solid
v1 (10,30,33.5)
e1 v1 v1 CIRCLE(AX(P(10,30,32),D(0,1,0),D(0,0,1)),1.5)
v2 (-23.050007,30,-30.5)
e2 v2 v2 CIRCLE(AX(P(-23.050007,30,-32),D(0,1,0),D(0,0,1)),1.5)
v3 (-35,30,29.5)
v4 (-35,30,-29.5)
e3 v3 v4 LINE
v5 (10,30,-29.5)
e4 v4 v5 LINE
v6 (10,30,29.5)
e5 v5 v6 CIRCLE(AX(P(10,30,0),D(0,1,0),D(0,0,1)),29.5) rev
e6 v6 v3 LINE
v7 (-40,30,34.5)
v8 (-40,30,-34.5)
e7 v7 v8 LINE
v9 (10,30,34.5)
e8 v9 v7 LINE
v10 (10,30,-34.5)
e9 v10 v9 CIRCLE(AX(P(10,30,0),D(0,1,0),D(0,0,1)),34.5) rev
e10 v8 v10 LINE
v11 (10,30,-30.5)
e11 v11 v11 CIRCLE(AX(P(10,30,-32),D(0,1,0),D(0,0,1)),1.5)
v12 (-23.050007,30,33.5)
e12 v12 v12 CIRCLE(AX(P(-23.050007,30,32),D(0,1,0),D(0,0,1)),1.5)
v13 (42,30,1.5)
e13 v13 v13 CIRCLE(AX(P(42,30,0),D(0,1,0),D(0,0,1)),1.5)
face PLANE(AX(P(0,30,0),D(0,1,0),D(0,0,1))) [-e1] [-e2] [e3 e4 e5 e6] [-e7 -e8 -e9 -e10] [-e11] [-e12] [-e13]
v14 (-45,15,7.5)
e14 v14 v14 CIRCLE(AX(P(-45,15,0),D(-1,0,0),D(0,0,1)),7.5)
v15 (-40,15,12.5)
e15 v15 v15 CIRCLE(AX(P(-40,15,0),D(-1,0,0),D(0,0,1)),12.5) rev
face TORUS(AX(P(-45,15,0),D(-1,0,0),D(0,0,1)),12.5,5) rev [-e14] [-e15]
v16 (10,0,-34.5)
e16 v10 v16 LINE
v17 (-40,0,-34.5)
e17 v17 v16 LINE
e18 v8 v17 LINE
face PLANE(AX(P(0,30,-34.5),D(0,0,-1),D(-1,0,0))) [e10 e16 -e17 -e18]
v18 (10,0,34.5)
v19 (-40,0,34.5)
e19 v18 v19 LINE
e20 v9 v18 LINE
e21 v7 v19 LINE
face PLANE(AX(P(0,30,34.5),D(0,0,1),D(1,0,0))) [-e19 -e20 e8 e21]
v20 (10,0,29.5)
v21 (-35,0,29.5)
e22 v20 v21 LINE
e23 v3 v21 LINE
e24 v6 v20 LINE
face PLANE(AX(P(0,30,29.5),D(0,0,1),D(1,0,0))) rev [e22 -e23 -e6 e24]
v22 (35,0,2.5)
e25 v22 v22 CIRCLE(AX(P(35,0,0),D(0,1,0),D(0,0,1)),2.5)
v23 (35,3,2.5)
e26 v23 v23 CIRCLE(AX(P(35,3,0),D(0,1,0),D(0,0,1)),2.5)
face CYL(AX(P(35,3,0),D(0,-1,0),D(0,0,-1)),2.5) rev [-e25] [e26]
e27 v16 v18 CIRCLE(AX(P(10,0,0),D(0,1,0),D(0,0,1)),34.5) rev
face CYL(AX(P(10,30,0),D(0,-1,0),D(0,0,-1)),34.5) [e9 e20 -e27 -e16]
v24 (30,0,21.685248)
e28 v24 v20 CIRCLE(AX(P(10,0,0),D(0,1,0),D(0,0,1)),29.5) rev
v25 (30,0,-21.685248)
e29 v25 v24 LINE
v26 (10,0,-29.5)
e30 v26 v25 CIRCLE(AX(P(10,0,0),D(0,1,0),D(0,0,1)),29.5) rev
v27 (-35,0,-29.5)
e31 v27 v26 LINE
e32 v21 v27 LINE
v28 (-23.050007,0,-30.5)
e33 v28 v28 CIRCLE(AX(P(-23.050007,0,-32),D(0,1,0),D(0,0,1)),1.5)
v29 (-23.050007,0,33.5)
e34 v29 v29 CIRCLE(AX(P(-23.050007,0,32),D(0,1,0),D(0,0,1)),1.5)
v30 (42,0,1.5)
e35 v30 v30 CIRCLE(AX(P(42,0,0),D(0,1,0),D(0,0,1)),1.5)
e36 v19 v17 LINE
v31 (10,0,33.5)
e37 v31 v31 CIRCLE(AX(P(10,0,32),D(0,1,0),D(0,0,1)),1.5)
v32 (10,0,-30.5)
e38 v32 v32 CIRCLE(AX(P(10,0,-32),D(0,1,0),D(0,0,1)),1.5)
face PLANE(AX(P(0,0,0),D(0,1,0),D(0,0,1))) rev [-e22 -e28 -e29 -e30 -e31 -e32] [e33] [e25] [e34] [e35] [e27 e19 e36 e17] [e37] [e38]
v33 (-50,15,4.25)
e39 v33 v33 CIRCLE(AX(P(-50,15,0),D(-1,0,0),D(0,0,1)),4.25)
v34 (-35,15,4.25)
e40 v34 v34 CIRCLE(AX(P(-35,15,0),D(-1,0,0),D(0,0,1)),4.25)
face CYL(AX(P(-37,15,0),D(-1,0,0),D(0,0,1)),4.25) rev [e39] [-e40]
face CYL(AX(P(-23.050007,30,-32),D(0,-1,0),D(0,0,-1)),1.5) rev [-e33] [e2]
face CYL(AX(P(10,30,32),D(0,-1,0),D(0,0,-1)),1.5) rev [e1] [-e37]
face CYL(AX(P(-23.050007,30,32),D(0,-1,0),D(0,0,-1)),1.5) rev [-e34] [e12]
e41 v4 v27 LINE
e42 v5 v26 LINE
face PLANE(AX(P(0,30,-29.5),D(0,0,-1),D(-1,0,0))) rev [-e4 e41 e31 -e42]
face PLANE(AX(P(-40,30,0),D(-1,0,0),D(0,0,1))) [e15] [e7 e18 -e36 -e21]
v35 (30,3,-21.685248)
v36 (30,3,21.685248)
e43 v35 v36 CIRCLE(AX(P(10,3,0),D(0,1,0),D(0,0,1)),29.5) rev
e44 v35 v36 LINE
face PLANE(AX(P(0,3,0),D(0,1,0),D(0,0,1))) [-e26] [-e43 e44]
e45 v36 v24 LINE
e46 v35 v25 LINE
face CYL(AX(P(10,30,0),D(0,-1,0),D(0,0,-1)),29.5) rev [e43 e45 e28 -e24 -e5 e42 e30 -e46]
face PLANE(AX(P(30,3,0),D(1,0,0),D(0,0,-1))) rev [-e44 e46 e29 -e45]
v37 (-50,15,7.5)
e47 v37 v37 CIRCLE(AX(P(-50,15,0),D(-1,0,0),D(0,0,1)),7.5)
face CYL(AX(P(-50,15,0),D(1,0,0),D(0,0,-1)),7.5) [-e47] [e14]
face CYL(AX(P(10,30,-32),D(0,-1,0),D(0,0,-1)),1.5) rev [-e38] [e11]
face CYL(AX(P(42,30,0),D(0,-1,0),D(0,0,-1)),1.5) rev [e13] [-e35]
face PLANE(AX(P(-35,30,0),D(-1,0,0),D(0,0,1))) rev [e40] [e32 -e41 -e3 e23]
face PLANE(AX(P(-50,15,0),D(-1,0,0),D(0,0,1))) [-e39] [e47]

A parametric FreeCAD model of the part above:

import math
import FreeCAD as App
import Part
import Sketcher
Q = App.Units.Quantity


def edges_at(feature, points):
    """Names of the edges that pass closest to the given points."""
    edges = feature.Shape.Edges
    near = lambda p: min(range(len(edges)), key=lambda i: edges[i].distToShape(Part.Vertex(*p))[0])
    return sorted({f"Edge{near(p) + 1}" for p in points})

doc = App.newDocument("Part")
body = doc.addObject("PartDesign::Body", "Body")

# Sketch on XZ plane
sketch1 = body.newObject("Sketcher::SketchObject", "Sketch")
sketch1.AttachmentSupport = (doc.getObject("XZ_Plane"), [""])
sketch1.MapMode = "FlatFace"
sketch1.addGeometry([
    Part.LineSegment(App.Vector(-40, 34.5, 0), App.Vector(10, 34.5, 0)),  # 0
    Part.ArcOfCircle(Part.Circle(App.Vector(10, 0, 0), App.Vector(0, 0, 1), 34.5), math.radians(-90), math.radians(90)),  # 1
    Part.LineSegment(App.Vector(10, -34.5, 0), App.Vector(-40, -34.5, 0)),  # 2
    Part.LineSegment(App.Vector(-40, -34.5, 0), App.Vector(-40, 34.5, 0)),  # 3
    Part.Circle(App.Vector(10, 32, 0), App.Vector(0, 0, 1), 1.5),  # 4
    Part.Circle(App.Vector(-23.1, 32, 0), App.Vector(0, 0, 1), 1.5),  # 5
    Part.Circle(App.Vector(42, 0, 0), App.Vector(0, 0, 1), 1.5),  # 6
    Part.Circle(App.Vector(10, -32, 0), App.Vector(0, 0, 1), 1.5),  # 7
    Part.LineSegment(App.Vector(-35, -29.5, 0), App.Vector(10, -29.5, 0)),  # 8
    Part.ArcOfCircle(Part.Circle(App.Vector(10, 0, 0), App.Vector(0, 0, 1), 29.5), math.radians(-90), math.radians(90)),  # 9
    Part.LineSegment(App.Vector(10, 29.5, 0), App.Vector(-35, 29.5, 0)),  # 10
    Part.LineSegment(App.Vector(-35, 29.5, 0), App.Vector(-35, -29.5, 0)),  # 11
    Part.Circle(App.Vector(-23.1, -32, 0), App.Vector(0, 0, 1), 1.5),  # 12
], False)
sketch1.addConstraint([
    Sketcher.Constraint("Tangent", 0, 2, 1, 2),
    Sketcher.Constraint("Tangent", 1, 1, 2, 1),
    Sketcher.Constraint("Coincident", 2, 2, 3, 1),
    Sketcher.Constraint("Coincident", 3, 2, 0, 1),
    Sketcher.Constraint("Tangent", 8, 2, 9, 1),
    Sketcher.Constraint("Tangent", 9, 2, 10, 1),
    Sketcher.Constraint("Coincident", 10, 2, 11, 1),
    Sketcher.Constraint("Coincident", 11, 2, 8, 1),
    Sketcher.Constraint("Horizontal", 0),
    Sketcher.Constraint("Horizontal", 2),
    Sketcher.Constraint("Vertical", 3),
    Sketcher.Constraint("Horizontal", 8),
    Sketcher.Constraint("Horizontal", 10),
    Sketcher.Constraint("Vertical", 11),
    Sketcher.Constraint("Coincident", 9, 3, 1, 3),
    Sketcher.Constraint("Equal", 4, 5),
    Sketcher.Constraint("Equal", 5, 6),
    Sketcher.Constraint("Equal", 6, 7),
    Sketcher.Constraint("Equal", 7, 12),
    Sketcher.Constraint("Symmetric", 4, 3, 7, 3, -1),
    Sketcher.Constraint("Symmetric", 5, 3, 12, 3, -1),
    Sketcher.Constraint("PointOnObject", 1, 3, -1),
    Sketcher.Constraint("PointOnObject", 6, 3, -1),
    Sketcher.Constraint("Horizontal", 4, 3, 5, 3),
    Sketcher.Constraint("Vertical", 1, 3, 4, 3),
    Sketcher.Constraint("Diameter", 4, Q("3 mm")),
    Sketcher.Constraint("Radius", 1, Q("34.5 mm")),
    Sketcher.Constraint("Radius", 9, Q("29.5 mm")),
    Sketcher.Constraint("DistanceX", 0, 1, 0, 2, Q("50 mm")),
    Sketcher.Constraint("DistanceX", 8, 1, 8, 2, Q("45 mm")),
    Sketcher.Constraint("DistanceX", -1, 1, 1, 3, Q("10 mm")),
    Sketcher.Constraint("DistanceY", -1, 1, 4, 3, Q("32 mm")),
    Sketcher.Constraint("DistanceX", -1, 1, 6, 3, Q("42 mm")),
    Sketcher.Constraint("DistanceX", 5, 3, -1, 1, Q("23.050007 mm")),
])
pad1 = body.newObject("PartDesign::Pad", "Pad")
pad1.Profile = sketch1
pad1.Length = 30
pad1.Reversed = True

# Sketch on XZ plane
sketch2 = body.newObject("Sketcher::SketchObject", "Sketch001")
sketch2.AttachmentSupport = (doc.getObject("XZ_Plane"), [""])
sketch2.MapMode = "FlatFace"
sketch2.addGeometry([
    Part.ArcOfCircle(Part.Circle(App.Vector(10, 0, 0), App.Vector(0, 0, 1), 29.5), math.radians(-47), math.radians(47)),
    Part.LineSegment(App.Vector(30, -21.7, 0), App.Vector(30, 21.7, 0)),
    Part.Circle(App.Vector(35, 0, 0), App.Vector(0, 0, 1), 2.5),
], False)
sketch2.addConstraint([
    Sketcher.Constraint("Coincident", 0, 1, 1, 1),
    Sketcher.Constraint("Coincident", 1, 2, 0, 2),
    Sketcher.Constraint("Vertical", 1),
    Sketcher.Constraint("PointOnObject", 0, 3, -1),
    Sketcher.Constraint("PointOnObject", 2, 3, -1),
    Sketcher.Constraint("Diameter", 2, Q("5 mm")),
    Sketcher.Constraint("Radius", 0, Q("29.5 mm")),
    Sketcher.Constraint("DistanceX", -1, 1, 0, 3, Q("10 mm")),
    Sketcher.Constraint("DistanceX", -1, 1, 2, 3, Q("35 mm")),
    Sketcher.Constraint("DistanceX", -1, 1, 0, 1, Q("30 mm")),
])
pad2 = body.newObject("PartDesign::Pad", "Pad001")
pad2.Profile = sketch2
pad2.Length = 3
pad2.Reversed = True

# Sketch on YZ plane
sketch3 = body.newObject("Sketcher::SketchObject", "Sketch002")
sketch3.AttachmentSupport = (doc.getObject("YZ_Plane"), [""])
sketch3.MapMode = "FlatFace"
sketch3.AttachmentOffset = App.Placement(App.Vector(0, 0, -40), App.Rotation())
sketch3.addGeometry(Part.Circle(App.Vector(15, 0, 0), App.Vector(0, 0, 1), 4.2), False)
sketch3.addConstraint([
    Sketcher.Constraint("PointOnObject", 0, 3, -1),
    Sketcher.Constraint("Diameter", 0, Q("8.5 mm")),
    Sketcher.Constraint("DistanceX", -1, 1, 0, 3, Q("15 mm")),
])
pocket1 = body.newObject("PartDesign::Pocket", "Pocket")
pocket1.Profile = sketch3
pocket1.Length = 3
pocket1.Reversed = True

# Sketch on YZ plane
sketch4 = body.newObject("Sketcher::SketchObject", "Sketch003")
sketch4.AttachmentSupport = (doc.getObject("YZ_Plane"), [""])
sketch4.MapMode = "FlatFace"
sketch4.AttachmentOffset = App.Placement(App.Vector(0, 0, -50), App.Rotation())
sketch4.addGeometry([
    Part.Circle(App.Vector(15, 0, 0), App.Vector(0, 0, 1), 7.5),
    Part.Circle(App.Vector(15, 0, 0), App.Vector(0, 0, 1), 4.2),
], False)
sketch4.addConstraint([
    Sketcher.Constraint("Coincident", 1, 3, 0, 3),
    Sketcher.Constraint("PointOnObject", 0, 3, -1),
    Sketcher.Constraint("Diameter", 0, Q("15 mm")),
    Sketcher.Constraint("Diameter", 1, Q("8.5 mm")),
    Sketcher.Constraint("DistanceX", -1, 1, 0, 3, Q("15 mm")),
])
pad3 = body.newObject("PartDesign::Pad", "Pad002")
pad3.Profile = sketch4
pad3.Length = 10
doc.recompute()

fillet = body.newObject("PartDesign::Fillet", "Fillet")
fillet.Base = (pad3, edges_at(pad3, [(-40, 15, -7.5)]))
fillet.Radius = 5

# Sketch on YZ plane
sketch5 = body.newObject("Sketcher::SketchObject", "Sketch004")
sketch5.AttachmentSupport = (doc.getObject("YZ_Plane"), [""])
sketch5.MapMode = "FlatFace"
sketch5.AttachmentOffset = App.Placement(App.Vector(0, 0, -37), App.Rotation())
sketch5.addGeometry(Part.Circle(App.Vector(15, 0, 0), App.Vector(0, 0, 1), 4.2), False)
sketch5.addConstraint([
    Sketcher.Constraint("PointOnObject", 0, 3, -1),
    Sketcher.Constraint("Diameter", 0, Q("8.5 mm")),
    Sketcher.Constraint("DistanceX", -1, 1, 0, 3, Q("15 mm")),
])
pocket2 = body.newObject("PartDesign::Pocket", "Pocket001")
pocket2.Profile = sketch5
pocket2.Length = 10
pocket2.Reversed = True

doc.recompute()
